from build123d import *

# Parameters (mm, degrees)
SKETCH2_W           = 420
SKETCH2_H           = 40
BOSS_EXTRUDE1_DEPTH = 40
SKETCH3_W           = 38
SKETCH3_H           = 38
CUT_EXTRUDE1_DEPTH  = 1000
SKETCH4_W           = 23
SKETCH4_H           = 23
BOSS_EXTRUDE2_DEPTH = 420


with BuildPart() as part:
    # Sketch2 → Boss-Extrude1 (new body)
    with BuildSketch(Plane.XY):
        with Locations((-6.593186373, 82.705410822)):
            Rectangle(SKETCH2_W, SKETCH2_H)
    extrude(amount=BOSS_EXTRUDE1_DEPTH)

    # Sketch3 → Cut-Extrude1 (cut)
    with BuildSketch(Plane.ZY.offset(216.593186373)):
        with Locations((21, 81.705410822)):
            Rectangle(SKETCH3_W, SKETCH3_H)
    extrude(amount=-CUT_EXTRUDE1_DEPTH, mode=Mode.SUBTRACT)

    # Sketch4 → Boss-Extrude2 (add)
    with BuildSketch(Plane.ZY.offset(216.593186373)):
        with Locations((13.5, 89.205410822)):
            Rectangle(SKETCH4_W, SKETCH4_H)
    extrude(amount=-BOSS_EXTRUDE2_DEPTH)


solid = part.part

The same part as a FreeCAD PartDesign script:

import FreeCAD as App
import Part
import Sketcher

V = App.Vector

doc = App.newDocument("Part")
params = doc.addObject("Spreadsheet::Sheet", "Params")
for row, (alias, value) in enumerate([
    ("sketch1_width", "420 mm"),
    ("sketch1_height", "40 mm"),
    ("pad1_length", "40 mm"),
    ("sketch2_width", "38 mm"),
    ("pocket1_length", "1000 mm"),
    ("sketch3_width", "23 mm"),
    ("pad2_length", "420 mm"),
], start=1):
    params.set(f"A{row}", alias)
    params.set(f"B{row}", "=" + value)
    params.setAlias(f"B{row}", alias)

body = doc.addObject("PartDesign::Body", "Body")

# Sketch on XY plane
sketch1 = doc.addObject("Sketcher::SketchObject", "Sketch")
body.addObject(sketch1)
sketch1.AttachmentSupport = (doc.XY_Plane, [""])
sketch1.MapMode = "FlatFace"
sketch1.addGeometry(Part.LineSegment(V(-217, 103, 0), V(-217, 63, 0)), False)
sketch1.addGeometry(Part.LineSegment(V(-217, 63, 0), V(203, 63, 0)), False)
sketch1.addGeometry(Part.LineSegment(V(203, 63, 0), V(203, 103, 0)), False)
sketch1.addGeometry(Part.LineSegment(V(203, 103, 0), V(-217, 103, 0)), False)
sketch1.addConstraint(Sketcher.Constraint("Coincident", 0, 2, 1, 1))
sketch1.addConstraint(Sketcher.Constraint("Coincident", 1, 2, 2, 1))
sketch1.addConstraint(Sketcher.Constraint("Coincident", 2, 2, 3, 1))
sketch1.addConstraint(Sketcher.Constraint("Coincident", 3, 2, 0, 1))
sketch1.addConstraint(Sketcher.Constraint("Vertical", 0))
sketch1.addConstraint(Sketcher.Constraint("Horizontal", 1))
sketch1.addConstraint(Sketcher.Constraint("Vertical", 2))
sketch1.addConstraint(Sketcher.Constraint("Horizontal", 3))
sketch1.addConstraint(Sketcher.Constraint("DistanceX", 1, 1, 1, 2, 420.0))
sketch1.addConstraint(Sketcher.Constraint("DistanceY", 0, 2, 0, 1, 40.0))
sketch1.addConstraint(Sketcher.Constraint("DistanceY", -1, 1, 0, 2, 62.705411))
sketch1.addConstraint(Sketcher.Constraint("DistanceX", 0, 2, -1, 1, 216.593186))
sketch1.setExpression("Constraints[8]", "Params.sketch1_width")
sketch1.setExpression("Constraints[9]", "Params.sketch1_height")
pad1 = doc.addObject("PartDesign::Pad", "Pad")
body.addObject(pad1)
pad1.Profile = sketch1
pad1.setExpression("Length", "Params.pad1_length")

# Sketch on YZ plane
sketch2 = doc.addObject("Sketcher::SketchObject", "Sketch001")
body.addObject(sketch2)
sketch2.AttachmentSupport = (doc.YZ_Plane, [""])
sketch2.MapMode = "FlatFace"
sketch2.AttachmentOffset = App.Placement(V(0, 0, -216.593186), App.Rotation())
sketch2.addGeometry(Part.LineSegment(V(101, 2, 0), V(63, 2, 0)), False)
sketch2.addGeometry(Part.LineSegment(V(63, 2, 0), V(63, 40, 0)), False)
sketch2.addGeometry(Part.LineSegment(V(63, 40, 0), V(101, 40, 0)), False)
sketch2.addGeometry(Part.LineSegment(V(101, 40, 0), V(101, 2, 0)), False)
sketch2.addConstraint(Sketcher.Constraint("Coincident", 0, 2, 1, 1))
sketch2.addConstraint(Sketcher.Constraint("Coincident", 1, 2, 2, 1))
sketch2.addConstraint(Sketcher.Constraint("Coincident", 2, 2, 3, 1))
sketch2.addConstraint(Sketcher.Constraint("Coincident", 3, 2, 0, 1))
sketch2.addConstraint(Sketcher.Constraint("Horizontal", 0))
sketch2.addConstraint(Sketcher.Constraint("Vertical", 1))
sketch2.addConstraint(Sketcher.Constraint("Horizontal", 2))
sketch2.addConstraint(Sketcher.Constraint("Vertical", 3))
sketch2.addConstraint(Sketcher.Constraint("Equal", 2, 1))
sketch2.addConstraint(Sketcher.Constraint("DistanceX", 0, 2, 0, 1, 38.0))
sketch2.addConstraint(Sketcher.Constraint("DistanceY", -1, 1, 0, 2, 2.0))
sketch2.addConstraint(Sketcher.Constraint("DistanceX", -1, 1, 0, 2, 62.705411))
sketch2.setExpression("Constraints[9]", "Params.sketch2_width")
pocket1 = doc.addObject("PartDesign::Pocket", "Pocket")
body.addObject(pocket1)
pocket1.Profile = sketch2
pocket1.setExpression("Length", "Params.pocket1_length")
pocket1.Reversed = True

# Sketch on YZ plane
sketch3 = doc.addObject("Sketcher::SketchObject", "Sketch002")
body.addObject(sketch3)
sketch3.AttachmentSupport = (doc.YZ_Plane, [""])
sketch3.MapMode = "FlatFace"
sketch3.AttachmentOffset = App.Placement(V(0, 0, -216.593186), App.Rotation())
sketch3.addGeometry(Part.LineSegment(V(101, 2, 0), V(78, 2, 0)), False)
sketch3.addGeometry(Part.LineSegment(V(78, 2, 0), V(78, 25, 0)), False)
sketch3.addGeometry(Part.LineSegment(V(78, 25, 0), V(101, 25, 0)), False)
sketch3.addGeometry(Part.LineSegment(V(101, 25, 0), V(101, 2, 0)), False)
sketch3.addConstraint(Sketcher.Constraint("Coincident", 0, 2, 1, 1))
sketch3.addConstraint(Sketcher.Constraint("Coincident", 1, 2, 2, 1))
sketch3.addConstraint(Sketcher.Constraint("Coincident", 2, 2, 3, 1))
sketch3.addConstraint(Sketcher.Constraint("Coincident", 3, 2, 0, 1))
sketch3.addConstraint(Sketcher.Constraint("Horizontal", 0))
sketch3.addConstraint(Sketcher.Constraint("Vertical", 1))
sketch3.addConstraint(Sketcher.Constraint("Horizontal", 2))
sketch3.addConstraint(Sketcher.Constraint("Vertical", 3))
sketch3.addConstraint(Sketcher.Constraint("Equal", 2, 1))
sketch3.addConstraint(Sketcher.Constraint("DistanceX", 0, 2, 0, 1, 23.0))
sketch3.addConstraint(Sketcher.Constraint("DistanceY", -1, 1, 0, 2, 2.0))
sketch3.addConstraint(Sketcher.Constraint("DistanceX", -1, 1, 0, 2, 77.705411))
sketch3.setExpression("Constraints[9]", "Params.sketch3_width")
pad2 = doc.addObject("PartDesign::Pad", "Pad001")
body.addObject(pad2)
pad2.Profile = sketch3
pad2.setExpression("Length", "Params.pad2_length")

doc.recompute()
